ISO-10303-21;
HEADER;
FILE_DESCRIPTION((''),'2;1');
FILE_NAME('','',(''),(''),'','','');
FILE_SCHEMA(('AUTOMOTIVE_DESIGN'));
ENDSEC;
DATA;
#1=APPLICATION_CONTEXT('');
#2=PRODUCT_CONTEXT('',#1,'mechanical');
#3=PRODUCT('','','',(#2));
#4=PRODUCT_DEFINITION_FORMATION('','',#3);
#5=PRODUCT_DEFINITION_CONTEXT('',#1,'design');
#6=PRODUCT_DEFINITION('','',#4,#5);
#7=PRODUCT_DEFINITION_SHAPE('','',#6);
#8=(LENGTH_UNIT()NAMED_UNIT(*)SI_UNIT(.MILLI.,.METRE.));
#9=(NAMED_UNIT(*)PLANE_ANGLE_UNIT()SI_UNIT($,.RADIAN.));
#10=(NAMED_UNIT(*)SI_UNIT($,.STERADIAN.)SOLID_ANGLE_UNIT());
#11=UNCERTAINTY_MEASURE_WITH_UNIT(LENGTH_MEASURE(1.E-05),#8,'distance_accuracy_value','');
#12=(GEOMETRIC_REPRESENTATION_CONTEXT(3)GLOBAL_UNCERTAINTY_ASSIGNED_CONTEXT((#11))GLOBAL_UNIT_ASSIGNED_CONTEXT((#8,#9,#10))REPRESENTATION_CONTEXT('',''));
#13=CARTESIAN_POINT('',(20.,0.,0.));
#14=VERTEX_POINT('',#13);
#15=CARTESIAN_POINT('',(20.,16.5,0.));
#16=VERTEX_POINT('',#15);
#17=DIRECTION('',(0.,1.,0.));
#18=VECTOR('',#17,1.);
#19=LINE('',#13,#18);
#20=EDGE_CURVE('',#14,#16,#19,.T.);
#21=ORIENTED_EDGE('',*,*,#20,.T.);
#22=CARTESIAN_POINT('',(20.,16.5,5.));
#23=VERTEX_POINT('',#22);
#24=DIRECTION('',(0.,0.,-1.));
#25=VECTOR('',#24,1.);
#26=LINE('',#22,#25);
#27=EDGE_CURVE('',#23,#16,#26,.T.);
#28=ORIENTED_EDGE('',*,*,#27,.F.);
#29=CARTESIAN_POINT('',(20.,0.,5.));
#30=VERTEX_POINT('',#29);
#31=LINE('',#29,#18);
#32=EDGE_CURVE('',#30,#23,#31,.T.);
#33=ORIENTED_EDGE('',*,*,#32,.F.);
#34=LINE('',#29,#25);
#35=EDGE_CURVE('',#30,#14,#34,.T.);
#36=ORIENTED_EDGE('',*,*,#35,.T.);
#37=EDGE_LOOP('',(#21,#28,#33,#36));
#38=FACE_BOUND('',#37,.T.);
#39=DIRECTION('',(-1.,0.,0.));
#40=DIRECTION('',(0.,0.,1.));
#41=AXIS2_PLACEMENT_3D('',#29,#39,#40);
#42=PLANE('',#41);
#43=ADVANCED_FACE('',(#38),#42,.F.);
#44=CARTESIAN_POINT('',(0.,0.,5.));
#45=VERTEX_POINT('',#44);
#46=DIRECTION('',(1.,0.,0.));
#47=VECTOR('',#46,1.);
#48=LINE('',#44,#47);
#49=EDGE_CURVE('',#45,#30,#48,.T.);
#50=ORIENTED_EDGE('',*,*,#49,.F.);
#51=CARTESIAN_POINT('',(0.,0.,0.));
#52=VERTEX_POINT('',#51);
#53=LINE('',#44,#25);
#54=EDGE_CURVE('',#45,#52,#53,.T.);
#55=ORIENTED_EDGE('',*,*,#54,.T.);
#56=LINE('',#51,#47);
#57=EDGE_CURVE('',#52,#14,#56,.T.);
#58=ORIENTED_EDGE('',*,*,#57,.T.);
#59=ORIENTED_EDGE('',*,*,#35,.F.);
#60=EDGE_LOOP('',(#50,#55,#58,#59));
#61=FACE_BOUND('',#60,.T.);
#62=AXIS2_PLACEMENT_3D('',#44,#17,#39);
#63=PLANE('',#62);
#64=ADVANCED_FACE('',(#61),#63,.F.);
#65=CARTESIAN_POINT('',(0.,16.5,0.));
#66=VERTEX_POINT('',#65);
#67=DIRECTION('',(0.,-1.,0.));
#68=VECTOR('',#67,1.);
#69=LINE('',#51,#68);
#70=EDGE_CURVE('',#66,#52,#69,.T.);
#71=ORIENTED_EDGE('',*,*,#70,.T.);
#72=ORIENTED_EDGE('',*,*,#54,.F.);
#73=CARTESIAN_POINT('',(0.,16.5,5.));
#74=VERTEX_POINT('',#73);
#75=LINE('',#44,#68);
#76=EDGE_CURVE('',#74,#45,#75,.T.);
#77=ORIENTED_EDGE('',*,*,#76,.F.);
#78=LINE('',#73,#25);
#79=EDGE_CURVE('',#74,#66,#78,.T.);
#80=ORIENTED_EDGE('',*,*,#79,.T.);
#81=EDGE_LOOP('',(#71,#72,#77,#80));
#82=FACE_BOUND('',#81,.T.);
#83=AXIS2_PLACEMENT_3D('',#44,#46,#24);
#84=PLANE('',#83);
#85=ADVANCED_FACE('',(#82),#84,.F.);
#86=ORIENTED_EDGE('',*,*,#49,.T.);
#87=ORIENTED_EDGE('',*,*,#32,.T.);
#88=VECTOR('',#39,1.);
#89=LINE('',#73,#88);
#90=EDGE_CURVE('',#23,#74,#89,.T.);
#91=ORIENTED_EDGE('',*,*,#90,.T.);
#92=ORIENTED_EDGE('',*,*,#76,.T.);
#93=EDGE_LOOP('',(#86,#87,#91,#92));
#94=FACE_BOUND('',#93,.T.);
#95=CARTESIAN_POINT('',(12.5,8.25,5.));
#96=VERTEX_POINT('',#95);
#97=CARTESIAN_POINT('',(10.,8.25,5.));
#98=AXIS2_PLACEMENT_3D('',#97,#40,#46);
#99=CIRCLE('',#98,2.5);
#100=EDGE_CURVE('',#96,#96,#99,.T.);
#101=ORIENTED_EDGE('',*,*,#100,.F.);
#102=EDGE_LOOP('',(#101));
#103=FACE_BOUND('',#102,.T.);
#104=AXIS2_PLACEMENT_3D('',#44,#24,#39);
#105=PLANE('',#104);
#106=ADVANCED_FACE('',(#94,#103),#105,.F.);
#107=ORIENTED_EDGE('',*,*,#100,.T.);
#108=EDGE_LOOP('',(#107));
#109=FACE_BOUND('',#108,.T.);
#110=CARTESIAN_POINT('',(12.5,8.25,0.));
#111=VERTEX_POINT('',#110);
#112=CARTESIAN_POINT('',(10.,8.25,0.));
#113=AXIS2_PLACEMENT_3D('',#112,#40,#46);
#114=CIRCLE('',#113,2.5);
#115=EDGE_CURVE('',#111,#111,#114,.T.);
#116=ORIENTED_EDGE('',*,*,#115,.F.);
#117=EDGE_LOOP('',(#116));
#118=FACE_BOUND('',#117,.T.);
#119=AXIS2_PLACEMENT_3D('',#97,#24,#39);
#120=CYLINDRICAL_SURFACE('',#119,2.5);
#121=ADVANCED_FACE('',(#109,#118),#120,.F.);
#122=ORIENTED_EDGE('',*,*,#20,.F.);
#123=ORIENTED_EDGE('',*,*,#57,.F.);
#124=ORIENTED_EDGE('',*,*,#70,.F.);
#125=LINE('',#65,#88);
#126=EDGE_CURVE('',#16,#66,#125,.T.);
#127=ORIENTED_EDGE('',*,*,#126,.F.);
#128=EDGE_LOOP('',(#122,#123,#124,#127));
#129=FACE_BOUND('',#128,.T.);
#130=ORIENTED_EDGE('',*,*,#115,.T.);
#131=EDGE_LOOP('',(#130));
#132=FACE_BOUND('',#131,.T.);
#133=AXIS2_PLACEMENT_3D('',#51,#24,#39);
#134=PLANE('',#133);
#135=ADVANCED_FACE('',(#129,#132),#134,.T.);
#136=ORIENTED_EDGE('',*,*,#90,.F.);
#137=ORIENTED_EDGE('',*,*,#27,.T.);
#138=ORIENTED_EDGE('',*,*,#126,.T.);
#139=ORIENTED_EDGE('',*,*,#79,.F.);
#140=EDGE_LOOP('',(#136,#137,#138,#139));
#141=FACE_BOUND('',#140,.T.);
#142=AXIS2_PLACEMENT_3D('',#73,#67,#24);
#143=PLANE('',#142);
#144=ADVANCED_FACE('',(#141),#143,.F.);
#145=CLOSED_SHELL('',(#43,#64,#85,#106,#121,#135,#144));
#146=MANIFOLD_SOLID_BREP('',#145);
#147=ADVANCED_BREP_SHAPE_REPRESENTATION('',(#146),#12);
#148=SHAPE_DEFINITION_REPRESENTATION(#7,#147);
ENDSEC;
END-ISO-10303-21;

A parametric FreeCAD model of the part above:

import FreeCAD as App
import Part
import Sketcher
from FreeCAD import Vector

doc = App.newDocument("Part")
body = doc.addObject("PartDesign::Body", "Body")

# Sketch on XY plane
sketch1 = doc.addObject("Sketcher::SketchObject", "Sketch")
body.addObject(sketch1)
sketch1.AttachmentSupport = (doc.XY_Plane, [""])
sketch1.MapMode = "FlatFace"
sketch1.addGeometry([
    Part.LineSegment(Vector(0, 16.5, 0), Vector(0, 0, 0)),  # 0
    Part.LineSegment(Vector(0, 0, 0), Vector(20, 0, 0)),  # 1
    Part.LineSegment(Vector(20, 0, 0), Vector(20, 16.5, 0)),  # 2
    Part.LineSegment(Vector(20, 16.5, 0), Vector(0, 16.5, 0)),  # 3
    Part.Circle(Vector(10, 8.2, 0), Vector(0, 0, 1), 2.5),  # 4
], False)
sketch1.addConstraint([
    Sketcher.Constraint("Coincident", 0, 2, 1, 1),
    Sketcher.Constraint("Coincident", 1, 2, 2, 1),
    Sketcher.Constraint("Coincident", 2, 2, 3, 1),
    Sketcher.Constraint("Coincident", 3, 2, 0, 1),
    Sketcher.Constraint("Vertical", 0),
    Sketcher.Constraint("Horizontal", 1),
    Sketcher.Constraint("Vertical", 2),
    Sketcher.Constraint("Horizontal", 3),
    Sketcher.Constraint("Coincident", 0, 2, -1, 1),
    Sketcher.Constraint("Diameter", 4, 5.0),
    Sketcher.Constraint("DistanceX", 1, 1, 1, 2, 20.0),
    Sketcher.Constraint("DistanceY", 0, 2, 0, 1, 16.5),
    Sketcher.Constraint("DistanceX", -1, 1, 4, 3, 10.0),
    Sketcher.Constraint("DistanceY", -1, 1, 4, 3, 8.25),
])
pad1 = doc.addObject("PartDesign::Pad", "Pad")
body.addObject(pad1)
pad1.Profile = sketch1
pad1.Length = 5

doc.recompute()
